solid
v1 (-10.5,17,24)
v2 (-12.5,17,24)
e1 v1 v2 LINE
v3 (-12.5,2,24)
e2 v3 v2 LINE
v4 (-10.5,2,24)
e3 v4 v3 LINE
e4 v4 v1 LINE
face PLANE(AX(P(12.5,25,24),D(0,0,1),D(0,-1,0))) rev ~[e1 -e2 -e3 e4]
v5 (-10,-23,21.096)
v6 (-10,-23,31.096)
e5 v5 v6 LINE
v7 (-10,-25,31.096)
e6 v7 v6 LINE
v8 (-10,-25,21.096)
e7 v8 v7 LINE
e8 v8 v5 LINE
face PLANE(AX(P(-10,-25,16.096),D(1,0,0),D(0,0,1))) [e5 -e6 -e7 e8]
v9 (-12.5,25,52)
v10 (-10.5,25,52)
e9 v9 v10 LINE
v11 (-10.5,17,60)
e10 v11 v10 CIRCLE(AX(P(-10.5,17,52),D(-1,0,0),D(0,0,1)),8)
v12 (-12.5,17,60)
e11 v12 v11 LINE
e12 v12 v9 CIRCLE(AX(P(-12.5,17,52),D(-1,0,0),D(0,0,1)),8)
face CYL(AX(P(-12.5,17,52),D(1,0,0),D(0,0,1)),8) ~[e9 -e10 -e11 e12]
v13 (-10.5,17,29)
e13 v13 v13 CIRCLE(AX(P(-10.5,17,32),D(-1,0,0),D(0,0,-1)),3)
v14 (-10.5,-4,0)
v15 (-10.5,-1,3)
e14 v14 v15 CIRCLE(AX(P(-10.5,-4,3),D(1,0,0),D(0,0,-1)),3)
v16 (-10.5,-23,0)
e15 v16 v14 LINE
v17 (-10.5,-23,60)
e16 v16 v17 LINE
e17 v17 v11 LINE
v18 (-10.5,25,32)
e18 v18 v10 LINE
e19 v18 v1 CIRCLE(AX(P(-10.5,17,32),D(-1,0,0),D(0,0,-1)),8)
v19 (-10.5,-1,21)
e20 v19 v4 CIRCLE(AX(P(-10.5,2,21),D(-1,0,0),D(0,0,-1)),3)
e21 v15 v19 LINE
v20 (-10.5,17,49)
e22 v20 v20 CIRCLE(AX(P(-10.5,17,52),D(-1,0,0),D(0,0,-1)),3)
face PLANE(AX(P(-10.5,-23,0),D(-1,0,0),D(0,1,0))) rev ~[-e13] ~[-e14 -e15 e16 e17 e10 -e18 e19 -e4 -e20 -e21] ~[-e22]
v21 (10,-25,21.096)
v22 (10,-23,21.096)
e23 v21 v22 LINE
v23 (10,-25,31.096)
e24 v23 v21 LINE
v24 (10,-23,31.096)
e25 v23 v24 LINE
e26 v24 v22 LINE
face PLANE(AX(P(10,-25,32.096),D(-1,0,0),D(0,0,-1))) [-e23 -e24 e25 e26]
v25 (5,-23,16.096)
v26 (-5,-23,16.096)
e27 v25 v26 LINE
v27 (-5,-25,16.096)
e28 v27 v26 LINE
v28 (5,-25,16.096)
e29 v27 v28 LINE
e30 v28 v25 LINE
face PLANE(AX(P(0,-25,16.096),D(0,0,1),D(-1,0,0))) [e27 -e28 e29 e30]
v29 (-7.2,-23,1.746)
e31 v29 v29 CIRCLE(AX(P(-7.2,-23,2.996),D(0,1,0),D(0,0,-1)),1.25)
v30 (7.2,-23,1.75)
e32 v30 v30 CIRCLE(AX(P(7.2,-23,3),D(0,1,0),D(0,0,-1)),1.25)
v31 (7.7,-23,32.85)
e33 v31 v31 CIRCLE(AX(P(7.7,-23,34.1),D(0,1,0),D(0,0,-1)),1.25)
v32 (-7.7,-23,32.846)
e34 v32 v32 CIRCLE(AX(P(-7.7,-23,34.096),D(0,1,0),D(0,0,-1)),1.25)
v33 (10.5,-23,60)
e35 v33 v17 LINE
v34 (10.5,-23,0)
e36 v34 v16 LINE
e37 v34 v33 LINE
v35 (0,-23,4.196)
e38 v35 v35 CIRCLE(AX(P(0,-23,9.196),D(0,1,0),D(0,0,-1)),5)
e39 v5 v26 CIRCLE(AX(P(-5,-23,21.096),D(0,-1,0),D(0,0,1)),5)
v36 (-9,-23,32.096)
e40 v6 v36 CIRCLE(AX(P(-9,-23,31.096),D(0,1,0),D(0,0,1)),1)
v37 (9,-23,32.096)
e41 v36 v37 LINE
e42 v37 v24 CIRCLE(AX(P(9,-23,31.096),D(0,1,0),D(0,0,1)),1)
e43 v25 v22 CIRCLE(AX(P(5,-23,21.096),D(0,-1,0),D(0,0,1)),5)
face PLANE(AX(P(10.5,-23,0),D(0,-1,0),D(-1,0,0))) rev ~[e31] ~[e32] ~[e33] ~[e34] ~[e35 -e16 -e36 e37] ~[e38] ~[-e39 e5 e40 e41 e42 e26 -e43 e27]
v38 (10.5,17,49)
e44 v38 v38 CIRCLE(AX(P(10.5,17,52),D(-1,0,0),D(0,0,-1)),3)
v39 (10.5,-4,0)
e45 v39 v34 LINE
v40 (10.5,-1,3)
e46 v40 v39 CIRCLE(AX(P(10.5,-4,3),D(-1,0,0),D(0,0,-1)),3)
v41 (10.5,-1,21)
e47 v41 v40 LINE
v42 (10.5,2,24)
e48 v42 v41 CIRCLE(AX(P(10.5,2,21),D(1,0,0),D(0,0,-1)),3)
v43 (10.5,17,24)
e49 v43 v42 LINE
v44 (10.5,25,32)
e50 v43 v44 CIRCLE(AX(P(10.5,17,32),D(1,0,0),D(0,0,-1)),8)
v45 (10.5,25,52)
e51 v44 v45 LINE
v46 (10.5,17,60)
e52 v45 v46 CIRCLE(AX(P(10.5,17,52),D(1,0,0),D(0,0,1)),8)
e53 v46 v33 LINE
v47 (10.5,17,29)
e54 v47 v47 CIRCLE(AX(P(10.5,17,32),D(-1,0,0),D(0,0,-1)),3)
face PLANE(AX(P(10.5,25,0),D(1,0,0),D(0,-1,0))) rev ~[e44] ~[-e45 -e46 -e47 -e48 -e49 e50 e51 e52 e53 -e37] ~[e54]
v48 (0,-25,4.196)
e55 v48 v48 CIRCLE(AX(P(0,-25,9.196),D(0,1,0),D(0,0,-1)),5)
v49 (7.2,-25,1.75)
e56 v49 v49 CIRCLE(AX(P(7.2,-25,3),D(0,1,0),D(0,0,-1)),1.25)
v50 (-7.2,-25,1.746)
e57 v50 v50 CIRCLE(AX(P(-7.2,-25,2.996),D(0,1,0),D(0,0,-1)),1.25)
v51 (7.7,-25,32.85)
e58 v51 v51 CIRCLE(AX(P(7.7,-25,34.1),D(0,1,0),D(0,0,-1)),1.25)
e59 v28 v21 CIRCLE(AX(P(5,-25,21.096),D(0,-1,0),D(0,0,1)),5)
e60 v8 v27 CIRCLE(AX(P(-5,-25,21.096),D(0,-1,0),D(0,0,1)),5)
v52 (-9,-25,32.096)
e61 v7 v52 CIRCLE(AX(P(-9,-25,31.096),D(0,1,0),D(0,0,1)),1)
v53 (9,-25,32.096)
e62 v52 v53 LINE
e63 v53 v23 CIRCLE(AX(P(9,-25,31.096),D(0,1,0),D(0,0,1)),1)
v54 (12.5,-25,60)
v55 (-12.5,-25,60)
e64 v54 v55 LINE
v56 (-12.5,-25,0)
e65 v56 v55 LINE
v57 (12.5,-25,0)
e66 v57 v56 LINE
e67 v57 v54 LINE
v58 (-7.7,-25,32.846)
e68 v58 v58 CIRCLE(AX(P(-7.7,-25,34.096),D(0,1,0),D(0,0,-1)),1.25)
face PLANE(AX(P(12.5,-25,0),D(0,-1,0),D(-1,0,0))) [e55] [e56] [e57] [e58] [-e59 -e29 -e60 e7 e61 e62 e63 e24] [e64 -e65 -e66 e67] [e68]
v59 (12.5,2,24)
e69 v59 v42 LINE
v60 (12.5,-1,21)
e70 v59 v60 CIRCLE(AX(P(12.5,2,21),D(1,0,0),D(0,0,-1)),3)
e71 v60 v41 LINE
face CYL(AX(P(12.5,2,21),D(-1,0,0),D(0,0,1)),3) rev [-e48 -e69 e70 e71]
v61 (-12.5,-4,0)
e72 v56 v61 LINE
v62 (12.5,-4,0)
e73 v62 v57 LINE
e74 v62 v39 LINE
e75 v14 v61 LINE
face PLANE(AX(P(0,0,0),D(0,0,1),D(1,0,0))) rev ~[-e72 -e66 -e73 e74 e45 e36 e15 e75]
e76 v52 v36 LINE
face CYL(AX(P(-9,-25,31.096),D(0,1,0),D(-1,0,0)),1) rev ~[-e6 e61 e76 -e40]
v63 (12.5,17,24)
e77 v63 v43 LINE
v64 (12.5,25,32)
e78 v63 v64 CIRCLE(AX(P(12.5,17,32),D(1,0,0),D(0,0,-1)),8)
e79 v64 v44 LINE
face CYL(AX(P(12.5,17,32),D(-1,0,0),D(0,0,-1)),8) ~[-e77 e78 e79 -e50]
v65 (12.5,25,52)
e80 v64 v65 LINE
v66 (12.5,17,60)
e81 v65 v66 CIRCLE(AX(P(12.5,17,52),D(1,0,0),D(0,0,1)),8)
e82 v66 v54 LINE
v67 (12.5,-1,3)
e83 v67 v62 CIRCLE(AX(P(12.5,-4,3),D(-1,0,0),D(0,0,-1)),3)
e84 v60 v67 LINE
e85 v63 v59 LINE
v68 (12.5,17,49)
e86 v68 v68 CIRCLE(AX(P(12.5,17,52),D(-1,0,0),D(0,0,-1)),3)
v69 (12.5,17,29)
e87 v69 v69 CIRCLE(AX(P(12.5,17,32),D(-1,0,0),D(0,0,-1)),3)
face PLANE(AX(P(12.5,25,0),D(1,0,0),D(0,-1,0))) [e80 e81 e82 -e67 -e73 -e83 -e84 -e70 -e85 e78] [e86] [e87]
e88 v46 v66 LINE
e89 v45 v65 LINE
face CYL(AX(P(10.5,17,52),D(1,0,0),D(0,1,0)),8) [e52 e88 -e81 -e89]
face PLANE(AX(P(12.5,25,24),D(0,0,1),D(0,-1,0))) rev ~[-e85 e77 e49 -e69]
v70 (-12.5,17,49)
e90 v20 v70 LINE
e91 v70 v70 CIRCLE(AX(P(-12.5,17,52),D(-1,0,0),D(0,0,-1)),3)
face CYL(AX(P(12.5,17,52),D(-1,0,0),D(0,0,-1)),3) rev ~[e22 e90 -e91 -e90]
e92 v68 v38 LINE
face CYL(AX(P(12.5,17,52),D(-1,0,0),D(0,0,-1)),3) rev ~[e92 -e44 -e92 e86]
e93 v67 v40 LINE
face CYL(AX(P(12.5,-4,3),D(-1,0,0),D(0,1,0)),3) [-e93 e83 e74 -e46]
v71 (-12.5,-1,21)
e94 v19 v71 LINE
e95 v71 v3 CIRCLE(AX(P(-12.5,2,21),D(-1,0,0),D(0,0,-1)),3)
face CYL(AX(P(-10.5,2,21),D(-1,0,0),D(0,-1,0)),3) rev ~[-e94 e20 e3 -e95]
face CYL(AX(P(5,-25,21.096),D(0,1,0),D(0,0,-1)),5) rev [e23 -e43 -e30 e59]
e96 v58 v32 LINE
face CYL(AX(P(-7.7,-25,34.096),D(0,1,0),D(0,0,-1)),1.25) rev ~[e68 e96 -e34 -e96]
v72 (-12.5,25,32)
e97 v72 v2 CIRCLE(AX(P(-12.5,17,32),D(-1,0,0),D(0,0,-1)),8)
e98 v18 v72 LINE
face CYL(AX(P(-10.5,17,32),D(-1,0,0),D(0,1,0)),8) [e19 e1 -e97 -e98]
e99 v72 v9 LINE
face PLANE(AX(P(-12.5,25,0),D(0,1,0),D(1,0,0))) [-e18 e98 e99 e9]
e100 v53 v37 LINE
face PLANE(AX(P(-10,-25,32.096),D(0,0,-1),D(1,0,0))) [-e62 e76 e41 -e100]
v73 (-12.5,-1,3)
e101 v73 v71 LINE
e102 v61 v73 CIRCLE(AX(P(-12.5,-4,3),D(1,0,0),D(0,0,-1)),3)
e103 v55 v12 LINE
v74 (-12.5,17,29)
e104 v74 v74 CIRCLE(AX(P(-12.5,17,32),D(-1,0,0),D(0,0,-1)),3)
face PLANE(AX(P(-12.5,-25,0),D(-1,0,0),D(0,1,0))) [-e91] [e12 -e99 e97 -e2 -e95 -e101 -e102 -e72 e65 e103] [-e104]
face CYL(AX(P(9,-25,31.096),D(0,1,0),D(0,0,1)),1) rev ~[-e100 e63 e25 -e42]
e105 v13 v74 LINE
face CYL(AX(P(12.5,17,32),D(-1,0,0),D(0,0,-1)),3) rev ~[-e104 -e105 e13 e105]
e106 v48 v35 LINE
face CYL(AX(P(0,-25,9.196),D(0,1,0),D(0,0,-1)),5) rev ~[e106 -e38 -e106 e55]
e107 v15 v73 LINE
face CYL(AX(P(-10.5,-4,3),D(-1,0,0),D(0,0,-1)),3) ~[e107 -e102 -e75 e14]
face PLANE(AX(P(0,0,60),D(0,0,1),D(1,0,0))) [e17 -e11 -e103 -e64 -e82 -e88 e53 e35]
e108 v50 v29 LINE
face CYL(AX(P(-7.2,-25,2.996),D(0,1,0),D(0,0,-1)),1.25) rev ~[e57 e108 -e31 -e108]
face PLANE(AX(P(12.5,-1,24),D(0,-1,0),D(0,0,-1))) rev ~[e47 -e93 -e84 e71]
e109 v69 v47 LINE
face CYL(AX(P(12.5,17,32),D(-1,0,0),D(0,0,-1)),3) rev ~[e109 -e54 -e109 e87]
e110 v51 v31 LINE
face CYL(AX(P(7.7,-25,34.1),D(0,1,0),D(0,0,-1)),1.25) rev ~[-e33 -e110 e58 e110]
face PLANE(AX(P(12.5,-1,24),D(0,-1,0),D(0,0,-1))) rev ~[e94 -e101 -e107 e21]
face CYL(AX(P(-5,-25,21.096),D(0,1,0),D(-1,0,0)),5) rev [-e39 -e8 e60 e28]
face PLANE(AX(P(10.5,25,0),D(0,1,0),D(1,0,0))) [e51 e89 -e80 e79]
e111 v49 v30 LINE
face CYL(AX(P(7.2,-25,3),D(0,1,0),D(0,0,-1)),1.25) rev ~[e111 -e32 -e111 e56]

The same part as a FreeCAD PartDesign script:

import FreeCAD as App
import Part
import Sketcher
from FreeCAD import Vector


def edges_at(feature, points):
    """Names of the edges that pass closest to the given points."""
    edges = feature.Shape.Edges
    near = lambda p: min(range(len(edges)), key=lambda i: edges[i].distToShape(Part.Vertex(*p))[0])
    return sorted({f"Edge{near(p) + 1}" for p in points})


def add_polygon(sketch, points):
    """Adds a closed chain of lines whose ends are joined by coincident constraints."""
    first, n = sketch.GeometryCount, len(points)
    for a, b in zip(points, points[1:] + points[:1]):
        sketch.addGeometry(Part.LineSegment(App.Vector(*a, 0), App.Vector(*b, 0)), False)
    for i in range(n):
        sketch.addConstraint(Sketcher.Constraint("Coincident", first + i, 2, first + (i + 1) % n, 1))

doc = App.newDocument("Part")
body = doc.addObject("PartDesign::Body", "Body")

sketch1 = body.newObject("Sketcher::SketchObject", "Sketch")
sketch1.AttachmentSupport = (doc.getObject("XY_Plane"), [""])
sketch1.MapMode = "FlatFace"
add_polygon(sketch1, [(-10.5, 25), (-12.5, 25), (-12.5, -25), (12.5, -25), (12.5, 25), (10.5, 25), (10.5, -23), (-10.5, -23)])
sketch1.addConstraint([
    Sketcher.Constraint("Horizontal", 0),
    Sketcher.Constraint("Vertical", 1),
    Sketcher.Constraint("Horizontal", 2),
    Sketcher.Constraint("Vertical", 3),
    Sketcher.Constraint("Horizontal", 4),
    Sketcher.Constraint("Vertical", 5),
    Sketcher.Constraint("Horizontal", 6),
    Sketcher.Constraint("Vertical", 7),
    Sketcher.Constraint("Symmetric", 0, 2, 2, 2, -1, 1),
    Sketcher.Constraint("Symmetric", 4, 2, 7, 2, -2),
    Sketcher.Constraint("DistanceX", 0, 2, 0, 1, 2.0),
    Sketcher.Constraint("DistanceX", 2, 1, 2, 2, 25.0),
    Sketcher.Constraint("DistanceY", 1, 2, 1, 1, 50.0),
    Sketcher.Constraint("DistanceY", 2, 2, 5, 2, 2.0),
])
pad1 = body.newObject("PartDesign::Pad", "Pad")
pad1.Profile = sketch1
pad1.Length = 60

sketch2 = body.newObject("Sketcher::SketchObject", "Sketch001")
sketch2.AttachmentSupport = (doc.getObject("YZ_Plane"), [""])
sketch2.MapMode = "FlatFace"
sketch2.AttachmentOffset = App.Placement(Vector(0, 0, 12.5), App.Rotation())
sketch2.addGeometry([
    Part.Circle(Vector(17, 52, 0), Vector(0, 0, 1), 3),
    Part.Circle(Vector(17, 32, 0), Vector(0, 0, 1), 3),
], False)
sketch2.addConstraint([
    Sketcher.Constraint("Equal", 0, 1),
    Sketcher.Constraint("Vertical", 0, 3, 1, 3),
    Sketcher.Constraint("Diameter", 0, 6.0),
    Sketcher.Constraint("DistanceX", -1, 1, 0, 3, 17.0),
    Sketcher.Constraint("DistanceY", -1, 1, 0, 3, 52.0),
    Sketcher.Constraint("DistanceY", -1, 1, 1, 3, 32.0),
])
doc.recompute()
hole = body.newObject("PartDesign::Hole", "Hole")
hole.Profile = sketch2
hole.ThreadType = "None"
hole.Diameter = 6
hole.DepthType = "ThroughAll"

sketch3 = body.newObject("Sketcher::SketchObject", "Sketch002")
sketch3.AttachmentSupport = (doc.getObject("XZ_Plane"), [""])
sketch3.MapMode = "FlatFace"
sketch3.AttachmentOffset = App.Placement(Vector(0, 0, 25), App.Rotation())
sketch3.addGeometry([
    Part.Circle(Vector(-7.7, 34.096, 0), Vector(0, 0, 1), 1.25),
    Part.Circle(Vector(-7.2, 2.996, 0), Vector(0, 0, 1), 1.25),
    Part.Circle(Vector(7.2, 3, 0), Vector(0, 0, 1), 1.25),
    Part.Circle(Vector(7.7, 34.1, 0), Vector(0, 0, 1), 1.25),
], False)
sketch3.addConstraint([
    Sketcher.Constraint("Equal", 0, 1),
    Sketcher.Constraint("Equal", 1, 2),
    Sketcher.Constraint("Equal", 2, 3),
    Sketcher.Constraint("Diameter", 0, 2.5),
    Sketcher.Constraint("DistanceY", -1, 1, 2, 3, 3.0),
    Sketcher.Constraint("DistanceX", 0, 3, -1, 1, 7.7),
    Sketcher.Constraint("DistanceX", 1, 3, -1, 1, 7.2),
    Sketcher.Constraint("DistanceX", -1, 1, 2, 3, 7.2),
    Sketcher.Constraint("DistanceX", -1, 1, 3, 3, 7.7),
    Sketcher.Constraint("DistanceY", -1, 1, 3, 3, 34.1),
    Sketcher.Constraint("DistanceY", 1, 3, 0, 3, 31.1),
    Sketcher.Constraint("DistanceY", -1, 1, 0, 3, 34.096),
])
doc.recompute()
hole2 = body.newObject("PartDesign::Hole", "Hole001")
hole2.Profile = sketch3
hole2.ThreadType = "None"
hole2.Diameter = 2.5
hole2.DepthType = "ThroughAll"

sketch4 = body.newObject("Sketcher::SketchObject", "Sketch003")
sketch4.AttachmentSupport = (doc.getObject("XZ_Plane"), [""])
sketch4.MapMode = "FlatFace"
sketch4.AttachmentOffset = App.Placement(Vector(0, 0, 25), App.Rotation())
sketch4.addGeometry(Part.Circle(Vector(0, 9.196, 0), Vector(0, 0, 1), 5), False)
sketch4.addConstraint([
    Sketcher.Constraint("PointOnObject", 0, 3, -2),
    Sketcher.Constraint("Diameter", 0, 10.0),
    Sketcher.Constraint("DistanceY", -1, 1, 0, 3, 9.196),
])
doc.recompute()
hole3 = body.newObject("PartDesign::Hole", "Hole002")
hole3.Profile = sketch4
hole3.ThreadType = "None"
hole3.Diameter = 10
hole3.DepthType = "Dimension"
hole3.Depth = 8
hole3.DrillPoint = "Angled"
hole3.DrillPointAngle = 118

sketch5 = body.newObject("Sketcher::SketchObject", "Sketch004")
sketch5.AttachmentSupport = (doc.getObject("XZ_Plane"), [""])
sketch5.MapMode = "FlatFace"
sketch5.AttachmentOffset = App.Placement(Vector(0, 0, 25), App.Rotation())
add_polygon(sketch5, [(-10, 32.096), (-10, 16.096), (10, 16.096), (10, 32.096)])
sketch5.addConstraint([
    Sketcher.Constraint("Vertical", 0),
    Sketcher.Constraint("Horizontal", 1),
    Sketcher.Constraint("Vertical", 2),
    Sketcher.Constraint("Horizontal", 3),
    Sketcher.Constraint("DistanceX", 1, 1, 1, 2, 20.0),
    Sketcher.Constraint("DistanceY", 0, 2, 0, 1, 16.0),
    Sketcher.Constraint("DistanceX", 0, 2, -1, 1, 10.0),
    Sketcher.Constraint("DistanceY", -1, 1, 0, 2, 16.096),
])
pocket1 = body.newObject("PartDesign::Pocket", "Pocket")
pocket1.Profile = sketch5
pocket1.Type = "ThroughAll"
doc.recompute()

fillet = body.newObject("PartDesign::Fillet", "Fillet")
fillet.Base = (pocket1, edges_at(pocket1, [(-10, -24, 16.096), (10, -24, 16.096)]))
fillet.Radius = 5
doc.recompute()

fillet2 = body.newObject("PartDesign::Fillet", "Fillet001")
fillet2.Base = (fillet, edges_at(fillet, [(-10, -24, 32.096), (10, -24, 32.096)]))
fillet2.Radius = 1

sketch6 = body.newObject("Sketcher::SketchObject", "Sketch005")
sketch6.AttachmentSupport = (doc.getObject("YZ_Plane"), [""])
sketch6.MapMode = "FlatFace"
sketch6.AttachmentOffset = App.Placement(Vector(0, 0, 12.5), App.Rotation())
add_polygon(sketch6, [(-1, 0), (25, 0), (25, 24), (-1, 24)])
sketch6.addConstraint([
    Sketcher.Constraint("Horizontal", 0),
    Sketcher.Constraint("Vertical", 1),
    Sketcher.Constraint("Horizontal", 2),
    Sketcher.Constraint("Vertical", 3),
    Sketcher.Constraint("PointOnObject", 0, 2, -1),
    Sketcher.Constraint("DistanceX", 0, 1, 0, 2, 26.0),
    Sketcher.Constraint("DistanceY", 1, 1, 1, 2, 24.0),
    Sketcher.Constraint("DistanceX", -1, 1, 0, 2, 25.0),
])
pocket2 = body.newObject("PartDesign::Pocket", "Pocket001")
pocket2.Profile = sketch6
pocket2.Type = "ThroughAll"
doc.recompute()

fillet3 = body.newObject("PartDesign::Fillet", "Fillet002")
fillet3.Base = (pocket2, edges_at(pocket2, [(11.5, -1, 24), (-11.5, -1, 24)]))
fillet3.Radius = 3
doc.recompute()

fillet4 = body.newObject("PartDesign::Fillet", "Fillet003")
fillet4.Base = (fillet3, edges_at(fillet3, [
    (-11.5, 25, 60),
    (11.5, 25, 60),
    (11.5, 25, 24),
    (-11.5, 25, 24),
]))
fillet4.Radius = 8
doc.recompute()

fillet5 = body.newObject("PartDesign::Fillet", "Fillet004")
fillet5.Base = (fillet4, edges_at(fillet4, [(11.5, -1, 0), (-11.5, -1, 0)]))
fillet5.Radius = 3

doc.recompute()
